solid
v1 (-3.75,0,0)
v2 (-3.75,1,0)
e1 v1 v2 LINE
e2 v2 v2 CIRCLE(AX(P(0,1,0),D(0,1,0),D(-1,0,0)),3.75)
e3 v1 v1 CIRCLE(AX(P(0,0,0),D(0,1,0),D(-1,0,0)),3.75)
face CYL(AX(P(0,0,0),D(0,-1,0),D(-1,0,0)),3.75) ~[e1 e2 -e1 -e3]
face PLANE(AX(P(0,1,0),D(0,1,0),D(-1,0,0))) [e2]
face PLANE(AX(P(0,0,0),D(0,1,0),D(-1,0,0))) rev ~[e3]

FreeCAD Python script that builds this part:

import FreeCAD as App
import Part
import Sketcher

V = App.Vector
Q = App.Units.Quantity

doc = App.newDocument("Part")
params = doc.addObject("Spreadsheet::Sheet", "Params")
for row, (alias, value) in enumerate([
    ("sketch1_diameter", "7.5 mm"),
    ("pad1_length", "1 mm"),
], start=1):
    params.set(f"A{row}", alias)
    params.set(f"B{row}", "=" + value)
    params.setAlias(f"B{row}", alias)

body = doc.addObject("PartDesign::Body", "Body")

sketch1 = doc.addObject("Sketcher::SketchObject", "Sketch")
body.addObject(sketch1)
sketch1.AttachmentSupport = (doc.XZ_Plane, [""])
sketch1.MapMode = "FlatFace"
sketch1.addGeometry(Part.Circle(V(0, 0, 0), V(0, 0, 1), 3.8), False)
sketch1.addConstraint([
    Sketcher.Constraint("Coincident", 0, 3, -1, 1),
    Sketcher.Constraint("Diameter", 0, Q("7.5 mm")),
])
sketch1.setExpression("Constraints[1]", "Params.sketch1_diameter")
pad1 = doc.addObject("PartDesign::Pad", "Pad")
body.addObject(pad1)
pad1.Profile = sketch1
pad1.setExpression("Length", "Params.pad1_length")
pad1.Reversed = True

doc.recompute()
